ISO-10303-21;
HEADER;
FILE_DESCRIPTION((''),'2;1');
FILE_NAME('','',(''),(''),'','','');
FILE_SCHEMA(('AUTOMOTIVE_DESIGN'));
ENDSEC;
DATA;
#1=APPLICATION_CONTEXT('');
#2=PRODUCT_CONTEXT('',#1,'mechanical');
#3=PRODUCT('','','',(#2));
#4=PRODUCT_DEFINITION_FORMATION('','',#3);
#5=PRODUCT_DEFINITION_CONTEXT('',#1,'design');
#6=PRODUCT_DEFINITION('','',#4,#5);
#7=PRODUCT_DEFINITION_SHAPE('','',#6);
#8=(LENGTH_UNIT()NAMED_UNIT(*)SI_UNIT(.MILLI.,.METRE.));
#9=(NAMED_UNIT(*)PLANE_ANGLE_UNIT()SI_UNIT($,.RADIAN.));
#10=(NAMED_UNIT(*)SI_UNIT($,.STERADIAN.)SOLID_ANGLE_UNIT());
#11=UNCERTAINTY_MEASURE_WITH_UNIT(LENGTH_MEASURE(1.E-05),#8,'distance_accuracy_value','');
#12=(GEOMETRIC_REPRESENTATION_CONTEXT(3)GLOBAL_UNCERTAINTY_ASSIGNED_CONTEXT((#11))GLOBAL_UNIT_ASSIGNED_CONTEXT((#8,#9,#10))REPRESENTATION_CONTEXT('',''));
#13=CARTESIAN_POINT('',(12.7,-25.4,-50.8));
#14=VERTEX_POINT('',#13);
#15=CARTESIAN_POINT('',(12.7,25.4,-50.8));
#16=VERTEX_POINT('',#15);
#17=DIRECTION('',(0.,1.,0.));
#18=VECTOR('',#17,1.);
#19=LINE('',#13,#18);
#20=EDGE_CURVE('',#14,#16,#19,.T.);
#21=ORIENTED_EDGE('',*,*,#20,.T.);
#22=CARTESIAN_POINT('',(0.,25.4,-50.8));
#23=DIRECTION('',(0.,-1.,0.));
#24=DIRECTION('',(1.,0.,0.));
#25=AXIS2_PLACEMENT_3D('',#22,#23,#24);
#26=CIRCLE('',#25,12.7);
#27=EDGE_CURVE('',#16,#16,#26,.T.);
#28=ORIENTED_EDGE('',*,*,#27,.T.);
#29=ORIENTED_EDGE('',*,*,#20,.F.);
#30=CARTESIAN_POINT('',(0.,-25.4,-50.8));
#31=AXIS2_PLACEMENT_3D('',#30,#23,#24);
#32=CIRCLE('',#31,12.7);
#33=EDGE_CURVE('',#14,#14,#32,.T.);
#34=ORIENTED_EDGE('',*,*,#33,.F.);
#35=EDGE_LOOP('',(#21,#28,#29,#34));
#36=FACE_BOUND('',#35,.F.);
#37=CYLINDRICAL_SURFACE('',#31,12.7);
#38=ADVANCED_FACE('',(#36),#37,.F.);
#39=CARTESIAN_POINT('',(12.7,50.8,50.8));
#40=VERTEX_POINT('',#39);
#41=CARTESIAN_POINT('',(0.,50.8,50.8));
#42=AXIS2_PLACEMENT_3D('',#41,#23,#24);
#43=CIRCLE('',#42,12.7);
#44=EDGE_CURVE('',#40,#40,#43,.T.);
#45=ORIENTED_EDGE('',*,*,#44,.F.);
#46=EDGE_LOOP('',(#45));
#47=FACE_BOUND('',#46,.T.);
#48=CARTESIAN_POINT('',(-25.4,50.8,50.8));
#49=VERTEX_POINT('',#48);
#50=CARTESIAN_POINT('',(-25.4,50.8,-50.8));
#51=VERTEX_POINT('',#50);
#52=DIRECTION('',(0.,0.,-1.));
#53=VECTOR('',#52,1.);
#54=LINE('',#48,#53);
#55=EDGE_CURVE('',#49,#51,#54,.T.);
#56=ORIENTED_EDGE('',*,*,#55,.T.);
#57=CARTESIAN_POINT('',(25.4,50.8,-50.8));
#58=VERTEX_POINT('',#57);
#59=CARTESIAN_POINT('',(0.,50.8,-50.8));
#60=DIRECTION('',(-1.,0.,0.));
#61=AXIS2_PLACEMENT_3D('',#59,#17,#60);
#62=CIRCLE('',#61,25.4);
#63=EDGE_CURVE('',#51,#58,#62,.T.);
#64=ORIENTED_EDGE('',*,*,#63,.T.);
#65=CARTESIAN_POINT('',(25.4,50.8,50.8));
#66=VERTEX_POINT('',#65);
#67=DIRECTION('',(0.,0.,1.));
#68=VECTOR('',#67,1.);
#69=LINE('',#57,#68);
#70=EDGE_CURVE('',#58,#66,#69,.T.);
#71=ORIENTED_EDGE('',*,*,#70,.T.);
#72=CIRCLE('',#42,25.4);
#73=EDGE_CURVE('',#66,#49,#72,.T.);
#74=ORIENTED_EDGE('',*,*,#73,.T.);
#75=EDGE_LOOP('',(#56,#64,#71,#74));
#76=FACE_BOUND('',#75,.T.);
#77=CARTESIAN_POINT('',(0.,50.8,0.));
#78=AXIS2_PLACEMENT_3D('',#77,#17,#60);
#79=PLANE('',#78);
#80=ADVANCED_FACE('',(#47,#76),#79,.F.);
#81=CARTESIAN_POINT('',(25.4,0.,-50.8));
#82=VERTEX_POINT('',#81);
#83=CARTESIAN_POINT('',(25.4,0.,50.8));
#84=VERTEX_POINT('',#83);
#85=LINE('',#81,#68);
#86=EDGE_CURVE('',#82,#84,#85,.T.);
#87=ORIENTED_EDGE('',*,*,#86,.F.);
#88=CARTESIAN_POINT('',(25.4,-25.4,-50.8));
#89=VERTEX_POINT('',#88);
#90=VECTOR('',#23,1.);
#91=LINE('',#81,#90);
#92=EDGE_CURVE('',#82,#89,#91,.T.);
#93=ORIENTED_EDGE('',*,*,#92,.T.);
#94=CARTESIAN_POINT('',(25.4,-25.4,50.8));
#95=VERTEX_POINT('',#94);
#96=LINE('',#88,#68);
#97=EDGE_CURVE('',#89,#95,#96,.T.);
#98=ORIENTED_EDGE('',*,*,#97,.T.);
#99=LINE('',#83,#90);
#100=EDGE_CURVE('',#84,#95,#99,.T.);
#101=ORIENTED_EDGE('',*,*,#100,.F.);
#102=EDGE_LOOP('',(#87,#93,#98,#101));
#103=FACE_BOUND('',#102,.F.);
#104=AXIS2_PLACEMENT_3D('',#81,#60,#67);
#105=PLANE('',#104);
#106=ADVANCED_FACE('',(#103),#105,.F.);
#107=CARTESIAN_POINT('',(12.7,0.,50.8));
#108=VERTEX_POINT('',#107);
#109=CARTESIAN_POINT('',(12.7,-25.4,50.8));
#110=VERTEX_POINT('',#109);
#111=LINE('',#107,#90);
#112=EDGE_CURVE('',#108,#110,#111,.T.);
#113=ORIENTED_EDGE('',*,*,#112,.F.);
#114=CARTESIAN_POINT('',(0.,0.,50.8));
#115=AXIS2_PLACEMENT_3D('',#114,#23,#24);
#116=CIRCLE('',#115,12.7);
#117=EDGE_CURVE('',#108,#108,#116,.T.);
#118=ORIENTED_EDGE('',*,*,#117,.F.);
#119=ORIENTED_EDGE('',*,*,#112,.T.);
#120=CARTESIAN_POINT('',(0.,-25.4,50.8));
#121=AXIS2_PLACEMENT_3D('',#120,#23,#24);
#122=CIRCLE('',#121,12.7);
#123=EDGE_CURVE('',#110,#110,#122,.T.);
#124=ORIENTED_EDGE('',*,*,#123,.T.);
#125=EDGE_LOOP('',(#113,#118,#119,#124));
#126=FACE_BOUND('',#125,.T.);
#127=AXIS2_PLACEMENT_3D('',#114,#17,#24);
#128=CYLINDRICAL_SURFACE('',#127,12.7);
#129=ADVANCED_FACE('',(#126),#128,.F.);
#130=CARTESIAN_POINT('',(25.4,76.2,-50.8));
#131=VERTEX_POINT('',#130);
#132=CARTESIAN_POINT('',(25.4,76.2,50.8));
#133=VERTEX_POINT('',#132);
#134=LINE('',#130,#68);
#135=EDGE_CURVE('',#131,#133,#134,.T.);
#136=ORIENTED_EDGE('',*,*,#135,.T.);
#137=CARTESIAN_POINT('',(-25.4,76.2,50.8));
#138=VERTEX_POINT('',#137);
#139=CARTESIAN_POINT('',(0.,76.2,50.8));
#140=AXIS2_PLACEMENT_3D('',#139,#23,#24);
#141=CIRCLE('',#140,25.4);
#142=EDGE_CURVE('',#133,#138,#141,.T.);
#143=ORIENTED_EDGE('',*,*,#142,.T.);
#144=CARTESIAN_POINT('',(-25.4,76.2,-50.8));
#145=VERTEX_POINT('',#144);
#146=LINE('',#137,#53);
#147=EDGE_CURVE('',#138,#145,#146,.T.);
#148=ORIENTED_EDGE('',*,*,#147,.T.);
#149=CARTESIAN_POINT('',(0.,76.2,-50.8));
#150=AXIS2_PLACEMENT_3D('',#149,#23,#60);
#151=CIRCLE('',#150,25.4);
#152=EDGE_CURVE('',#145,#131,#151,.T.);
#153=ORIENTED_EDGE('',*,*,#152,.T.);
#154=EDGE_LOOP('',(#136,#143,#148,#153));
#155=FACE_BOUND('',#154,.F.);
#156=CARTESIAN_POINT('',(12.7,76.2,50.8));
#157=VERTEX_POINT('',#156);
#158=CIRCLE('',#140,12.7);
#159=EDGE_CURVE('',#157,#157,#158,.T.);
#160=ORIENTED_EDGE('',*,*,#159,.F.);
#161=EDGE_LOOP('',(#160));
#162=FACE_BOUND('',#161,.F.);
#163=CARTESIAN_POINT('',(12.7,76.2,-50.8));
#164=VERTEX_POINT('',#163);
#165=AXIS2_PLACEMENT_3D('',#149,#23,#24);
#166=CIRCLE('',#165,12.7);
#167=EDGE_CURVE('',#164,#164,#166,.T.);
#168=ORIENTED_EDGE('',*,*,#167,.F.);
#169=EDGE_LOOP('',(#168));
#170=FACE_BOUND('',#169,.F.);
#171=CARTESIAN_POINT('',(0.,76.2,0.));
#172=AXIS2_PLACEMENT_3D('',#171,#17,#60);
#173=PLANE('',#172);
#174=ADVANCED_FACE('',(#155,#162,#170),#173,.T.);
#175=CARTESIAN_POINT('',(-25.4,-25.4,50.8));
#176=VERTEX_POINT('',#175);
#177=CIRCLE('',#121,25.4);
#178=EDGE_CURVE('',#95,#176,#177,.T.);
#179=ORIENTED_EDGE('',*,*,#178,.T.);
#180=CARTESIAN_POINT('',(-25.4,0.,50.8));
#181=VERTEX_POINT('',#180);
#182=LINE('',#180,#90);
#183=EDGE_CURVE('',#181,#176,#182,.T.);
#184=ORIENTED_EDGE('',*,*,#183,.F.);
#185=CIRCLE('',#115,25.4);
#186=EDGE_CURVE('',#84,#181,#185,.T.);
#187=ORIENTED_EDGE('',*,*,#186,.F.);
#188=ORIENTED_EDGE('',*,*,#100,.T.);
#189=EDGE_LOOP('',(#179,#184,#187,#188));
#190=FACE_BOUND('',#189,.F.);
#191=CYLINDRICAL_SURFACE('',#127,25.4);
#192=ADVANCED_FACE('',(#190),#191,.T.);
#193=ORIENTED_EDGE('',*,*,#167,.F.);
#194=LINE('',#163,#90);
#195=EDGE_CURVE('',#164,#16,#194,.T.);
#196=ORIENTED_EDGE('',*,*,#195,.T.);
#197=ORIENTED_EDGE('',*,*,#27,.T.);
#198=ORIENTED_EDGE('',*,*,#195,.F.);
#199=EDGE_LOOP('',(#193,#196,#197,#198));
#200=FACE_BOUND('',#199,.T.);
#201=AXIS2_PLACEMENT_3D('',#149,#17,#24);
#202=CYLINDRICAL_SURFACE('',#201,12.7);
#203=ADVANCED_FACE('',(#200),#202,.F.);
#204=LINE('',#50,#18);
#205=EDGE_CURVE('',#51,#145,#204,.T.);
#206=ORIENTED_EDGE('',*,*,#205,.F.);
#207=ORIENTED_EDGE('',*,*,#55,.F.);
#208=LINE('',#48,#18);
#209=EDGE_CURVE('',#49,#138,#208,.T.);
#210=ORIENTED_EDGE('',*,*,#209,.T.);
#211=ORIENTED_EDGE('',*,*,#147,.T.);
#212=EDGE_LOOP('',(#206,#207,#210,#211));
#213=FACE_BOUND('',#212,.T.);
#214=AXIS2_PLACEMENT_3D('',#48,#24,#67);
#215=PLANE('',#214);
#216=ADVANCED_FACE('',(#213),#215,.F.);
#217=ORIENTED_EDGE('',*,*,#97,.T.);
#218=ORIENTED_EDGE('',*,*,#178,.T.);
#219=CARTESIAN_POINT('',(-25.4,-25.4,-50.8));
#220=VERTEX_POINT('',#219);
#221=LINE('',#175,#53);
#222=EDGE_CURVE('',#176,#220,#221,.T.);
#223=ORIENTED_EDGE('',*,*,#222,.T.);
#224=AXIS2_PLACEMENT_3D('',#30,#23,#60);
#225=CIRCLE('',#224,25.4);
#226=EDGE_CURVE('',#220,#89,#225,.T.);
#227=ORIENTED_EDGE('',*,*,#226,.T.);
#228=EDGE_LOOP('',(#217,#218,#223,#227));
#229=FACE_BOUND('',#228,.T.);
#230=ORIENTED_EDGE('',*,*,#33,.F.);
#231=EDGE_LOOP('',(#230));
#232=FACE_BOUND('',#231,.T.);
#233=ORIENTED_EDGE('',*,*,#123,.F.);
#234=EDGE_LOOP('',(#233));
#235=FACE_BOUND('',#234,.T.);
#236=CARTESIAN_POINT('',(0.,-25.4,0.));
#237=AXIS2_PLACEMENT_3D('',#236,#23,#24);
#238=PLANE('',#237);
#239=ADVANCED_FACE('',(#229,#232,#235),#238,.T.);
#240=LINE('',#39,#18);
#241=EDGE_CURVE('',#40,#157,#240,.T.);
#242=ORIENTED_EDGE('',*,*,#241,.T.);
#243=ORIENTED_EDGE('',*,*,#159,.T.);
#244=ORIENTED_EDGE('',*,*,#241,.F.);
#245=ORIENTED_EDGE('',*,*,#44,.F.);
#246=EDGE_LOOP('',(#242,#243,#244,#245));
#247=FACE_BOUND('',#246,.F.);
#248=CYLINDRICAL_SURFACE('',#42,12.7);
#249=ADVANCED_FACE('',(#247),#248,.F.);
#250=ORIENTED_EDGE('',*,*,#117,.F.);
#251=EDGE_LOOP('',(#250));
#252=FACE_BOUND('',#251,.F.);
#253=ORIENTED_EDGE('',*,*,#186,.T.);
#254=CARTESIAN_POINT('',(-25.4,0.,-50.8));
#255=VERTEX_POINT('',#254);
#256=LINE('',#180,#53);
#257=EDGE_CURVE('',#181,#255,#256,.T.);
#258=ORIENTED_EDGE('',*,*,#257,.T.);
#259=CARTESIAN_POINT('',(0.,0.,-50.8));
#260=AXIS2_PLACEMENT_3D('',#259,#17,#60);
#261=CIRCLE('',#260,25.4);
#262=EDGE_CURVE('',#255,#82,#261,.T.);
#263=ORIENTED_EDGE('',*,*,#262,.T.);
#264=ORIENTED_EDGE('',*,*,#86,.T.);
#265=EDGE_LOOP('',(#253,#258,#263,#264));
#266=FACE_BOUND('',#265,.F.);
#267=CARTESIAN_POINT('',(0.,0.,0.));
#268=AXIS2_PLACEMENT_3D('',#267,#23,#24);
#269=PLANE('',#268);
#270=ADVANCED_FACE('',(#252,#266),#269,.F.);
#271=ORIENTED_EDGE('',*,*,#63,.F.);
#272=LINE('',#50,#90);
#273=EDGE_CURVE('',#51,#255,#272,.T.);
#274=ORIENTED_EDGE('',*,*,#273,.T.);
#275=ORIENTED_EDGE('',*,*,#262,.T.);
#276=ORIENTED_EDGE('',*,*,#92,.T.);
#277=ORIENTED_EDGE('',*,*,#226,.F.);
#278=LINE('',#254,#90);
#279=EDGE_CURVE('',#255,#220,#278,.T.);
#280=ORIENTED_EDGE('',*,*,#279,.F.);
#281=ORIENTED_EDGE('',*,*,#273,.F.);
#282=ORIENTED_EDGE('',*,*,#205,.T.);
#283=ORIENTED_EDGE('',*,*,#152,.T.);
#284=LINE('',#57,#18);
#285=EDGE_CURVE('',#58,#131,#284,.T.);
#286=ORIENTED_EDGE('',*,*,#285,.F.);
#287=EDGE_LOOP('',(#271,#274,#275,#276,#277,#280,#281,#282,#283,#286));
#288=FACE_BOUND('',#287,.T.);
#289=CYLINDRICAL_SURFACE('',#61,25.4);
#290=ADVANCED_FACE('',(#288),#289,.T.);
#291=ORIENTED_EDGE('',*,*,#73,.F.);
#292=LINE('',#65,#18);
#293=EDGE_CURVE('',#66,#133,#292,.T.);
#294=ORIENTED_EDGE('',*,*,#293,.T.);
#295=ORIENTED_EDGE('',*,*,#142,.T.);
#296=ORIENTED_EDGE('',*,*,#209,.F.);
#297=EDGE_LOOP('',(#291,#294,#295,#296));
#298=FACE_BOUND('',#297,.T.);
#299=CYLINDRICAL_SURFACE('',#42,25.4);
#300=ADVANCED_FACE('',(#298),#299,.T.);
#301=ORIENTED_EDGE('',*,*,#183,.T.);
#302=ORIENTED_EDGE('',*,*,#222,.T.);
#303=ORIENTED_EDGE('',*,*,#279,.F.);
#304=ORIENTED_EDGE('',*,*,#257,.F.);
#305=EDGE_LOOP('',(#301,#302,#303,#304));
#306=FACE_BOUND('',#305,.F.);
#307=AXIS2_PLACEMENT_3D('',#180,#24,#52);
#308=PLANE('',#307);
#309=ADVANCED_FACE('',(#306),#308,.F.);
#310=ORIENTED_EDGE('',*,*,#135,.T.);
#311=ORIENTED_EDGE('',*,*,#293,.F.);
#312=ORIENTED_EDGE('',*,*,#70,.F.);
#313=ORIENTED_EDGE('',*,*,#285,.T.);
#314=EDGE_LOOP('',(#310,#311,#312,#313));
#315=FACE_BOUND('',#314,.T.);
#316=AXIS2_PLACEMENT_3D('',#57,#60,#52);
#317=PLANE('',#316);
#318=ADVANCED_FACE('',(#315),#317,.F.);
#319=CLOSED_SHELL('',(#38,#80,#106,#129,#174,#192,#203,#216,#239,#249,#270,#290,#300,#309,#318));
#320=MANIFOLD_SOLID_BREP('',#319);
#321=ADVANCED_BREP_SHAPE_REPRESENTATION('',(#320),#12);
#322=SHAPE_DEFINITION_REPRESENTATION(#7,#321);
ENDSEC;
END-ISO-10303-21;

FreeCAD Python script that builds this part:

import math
import FreeCAD as App
import Part
import Sketcher
Q = App.Units.Quantity

doc = App.newDocument("Part")
params = doc.addObject("Spreadsheet::Sheet", "Params")
for row, (alias, value) in enumerate([
    ("sketch1_diameter", "1 in"),
    ("sketch1_radius", "1 in"),
    ("sketch1_height", "4 in"),
    ("pad1_length", "1 in"),
    ("sketch2_diameter", "2 in"),
    ("pad2_length", "1 in"),
    ("sketch3_diameter", "1 in"),
], start=1):
    params.set(f"A{row}", alias)
    params.set(f"B{row}", "=" + value)
    params.setAlias(f"B{row}", alias)

body = doc.addObject("PartDesign::Body", "Body")

# Sketch on XZ plane
sketch1 = body.newObject("Sketcher::SketchObject", "Sketch")
sketch1.AttachmentSupport = (doc.getObject("XZ_Plane"), [""])
sketch1.MapMode = "FlatFace"
sketch1.addGeometry(Part.ArcOfCircle(Part.Circle(App.Vector(0, 51, 0), App.Vector(0, 0, 1), 25), math.radians(0), math.radians(180)), False)
sketch1.addGeometry(Part.LineSegment(App.Vector(-25, 51, 0), App.Vector(-25, -51, 0)), False)
sketch1.addGeometry(Part.ArcOfCircle(Part.Circle(App.Vector(0, -51, 0), App.Vector(0, 0, 1), 25), math.radians(180), math.radians(360)), False)
sketch1.addGeometry(Part.LineSegment(App.Vector(25, -51, 0), App.Vector(25, 51, 0)), False)
sketch1.addGeometry(Part.Circle(App.Vector(0, -51, 0), App.Vector(0, 0, 1), 13), False)
sketch1.addGeometry(Part.Circle(App.Vector(0, 51, 0), App.Vector(0, 0, 1), 13), False)
sketch1.addConstraint(Sketcher.Constraint("Tangent", 0, 2, 1, 1))
sketch1.addConstraint(Sketcher.Constraint("Tangent", 1, 2, 2, 1))
sketch1.addConstraint(Sketcher.Constraint("Tangent", 2, 2, 3, 1))
sketch1.addConstraint(Sketcher.Constraint("Tangent", 3, 2, 0, 1))
sketch1.addConstraint(Sketcher.Constraint("Vertical", 1))
sketch1.addConstraint(Sketcher.Constraint("Vertical", 3))
sketch1.addConstraint(Sketcher.Constraint("Coincident", 4, 3, 2, 3))
sketch1.addConstraint(Sketcher.Constraint("Coincident", 5, 3, 0, 3))
sketch1.addConstraint(Sketcher.Constraint("Equal", 4, 5))
sketch1.addConstraint(Sketcher.Constraint("Symmetric", 0, 3, 2, 3, -1, 1))
sketch1.addConstraint(Sketcher.Constraint("Diameter", 4, Q("1 in")))
sketch1.addConstraint(Sketcher.Constraint("Radius", 0, Q("1 in")))
sketch1.addConstraint(Sketcher.Constraint("DistanceY", 1, 2, 1, 1, Q("4 in")))
sketch1.setExpression("Constraints[10]", "Params.sketch1_diameter")
sketch1.setExpression("Constraints[11]", "Params.sketch1_radius")
sketch1.setExpression("Constraints[12]", "Params.sketch1_height")
pad1 = body.newObject("PartDesign::Pad", "Pad")
pad1.Profile = sketch1
pad1.setExpression("Length", "Params.pad1_length")

# Sketch on XZ plane
sketch2 = body.newObject("Sketcher::SketchObject", "Sketch001")
sketch2.AttachmentSupport = (doc.getObject("XZ_Plane"), [""])
sketch2.MapMode = "FlatFace"
sketch2.addGeometry(Part.Circle(App.Vector(0, -51, 0), App.Vector(0, 0, 1), 25), False)
sketch2.addConstraint(Sketcher.Constraint("PointOnObject", 0, 3, -2))
sketch2.addConstraint(Sketcher.Constraint("Diameter", 0, Q("2 in")))
sketch2.addConstraint(Sketcher.Constraint("DistanceY", 0, 3, -1, 1, Q("2 in")))
sketch2.setExpression("Constraints[1]", "Params.sketch2_diameter")
pad2 = body.newObject("PartDesign::Pad", "Pad001")
pad2.Profile = sketch2
pad2.setExpression("Length", "Params.pad2_length")
pad2.Reversed = True

# Sketch on XZ plane
sketch3 = body.newObject("Sketcher::SketchObject", "Sketch002")
sketch3.AttachmentSupport = (doc.getObject("XZ_Plane"), [""])
sketch3.MapMode = "FlatFace"
sketch3.AttachmentOffset = App.Placement(App.Vector(0, 0, 1 * 25.4), App.Rotation())
sketch3.addGeometry(Part.Circle(App.Vector(0, -51, 0), App.Vector(0, 0, 1), 13), False)
sketch3.addConstraint(Sketcher.Constraint("PointOnObject", 0, 3, -2))
sketch3.addConstraint(Sketcher.Constraint("Diameter", 0, Q("1 in")))
sketch3.addConstraint(Sketcher.Constraint("DistanceY", 0, 3, -1, 1, Q("2 in")))
sketch3.setExpression("Constraints[1]", "Params.sketch3_diameter")
pocket1 = body.newObject("PartDesign::Pocket", "Pocket")
pocket1.Profile = sketch3
pocket1.Type = "ThroughAll"
body2 = doc.addObject("PartDesign::Body", "Body001")
doc.recompute()

body2.BaseFeature = body
doc.recompute()

mirroring = doc.addObject("Part::Mirroring", "Mirroring")
mirroring.Source = body
mirroring.Base = App.Vector(0, 25.4, -50.8)
mirroring.Normal = App.Vector(0, 1, 0)
body3 = doc.addObject("PartDesign::Body", "Body002")
body3.BaseFeature = mirroring
boolean = body2.newObject("PartDesign::Boolean", "Boolean")
boolean.Type = "Fuse"
boolean.addObjects([body3])
doc.recompute()
mirroring.Visibility = False

doc.recompute()
